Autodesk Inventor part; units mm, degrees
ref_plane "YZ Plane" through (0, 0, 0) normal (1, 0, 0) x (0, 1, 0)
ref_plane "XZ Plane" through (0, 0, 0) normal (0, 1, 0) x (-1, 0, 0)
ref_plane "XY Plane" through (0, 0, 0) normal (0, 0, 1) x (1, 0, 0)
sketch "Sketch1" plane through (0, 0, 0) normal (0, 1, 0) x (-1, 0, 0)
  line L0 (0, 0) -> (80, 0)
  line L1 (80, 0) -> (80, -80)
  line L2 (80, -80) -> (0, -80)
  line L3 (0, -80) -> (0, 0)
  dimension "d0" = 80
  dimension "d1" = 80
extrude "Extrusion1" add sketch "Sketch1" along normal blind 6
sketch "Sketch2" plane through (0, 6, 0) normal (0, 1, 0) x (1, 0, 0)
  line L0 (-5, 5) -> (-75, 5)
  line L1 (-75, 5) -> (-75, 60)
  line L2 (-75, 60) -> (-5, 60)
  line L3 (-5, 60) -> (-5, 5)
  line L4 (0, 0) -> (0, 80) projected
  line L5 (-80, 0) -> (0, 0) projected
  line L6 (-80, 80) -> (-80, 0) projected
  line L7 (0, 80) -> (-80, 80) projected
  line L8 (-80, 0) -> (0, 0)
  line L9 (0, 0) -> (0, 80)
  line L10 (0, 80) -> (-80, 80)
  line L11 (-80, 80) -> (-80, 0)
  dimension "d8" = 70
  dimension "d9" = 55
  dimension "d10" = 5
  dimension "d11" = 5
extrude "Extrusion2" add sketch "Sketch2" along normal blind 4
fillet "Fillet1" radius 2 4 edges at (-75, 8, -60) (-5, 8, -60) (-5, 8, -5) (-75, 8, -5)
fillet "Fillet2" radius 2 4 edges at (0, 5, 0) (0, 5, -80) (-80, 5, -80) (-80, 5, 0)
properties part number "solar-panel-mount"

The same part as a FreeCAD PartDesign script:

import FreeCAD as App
import Part
import Sketcher
from FreeCAD import Vector
Q = App.Units.Quantity


def edges_at(feature, points):
    """Names of the edges that pass closest to the given points."""
    edges = feature.Shape.Edges
    near = lambda p: min(range(len(edges)), key=lambda i: edges[i].distToShape(Part.Vertex(*p))[0])
    return sorted({f"Edge{near(p) + 1}" for p in points})

doc = App.newDocument("Part")
body = doc.addObject("PartDesign::Body", "Body")

sketch1 = body.newObject("Sketcher::SketchObject", "Sketch")
sketch1.AttachmentSupport = (doc.getObject("XZ_Plane"), [""])
sketch1.MapMode = "FlatFace"
sketch1.addGeometry(Part.LineSegment(Vector(-80, 0, 0), Vector(0, 0, 0)), False)
sketch1.addGeometry(Part.LineSegment(Vector(0, 0, 0), Vector(0, -80, 0)), False)
sketch1.addGeometry(Part.LineSegment(Vector(0, -80, 0), Vector(-80, -80, 0)), False)
sketch1.addGeometry(Part.LineSegment(Vector(-80, -80, 0), Vector(-80, 0, 0)), False)
sketch1.addConstraint(Sketcher.Constraint("Coincident", 0, 2, 1, 1))
sketch1.addConstraint(Sketcher.Constraint("Coincident", 1, 2, 2, 1))
sketch1.addConstraint(Sketcher.Constraint("Coincident", 2, 2, 3, 1))
sketch1.addConstraint(Sketcher.Constraint("Coincident", 3, 2, 0, 1))
sketch1.addConstraint(Sketcher.Constraint("Horizontal", 0))
sketch1.addConstraint(Sketcher.Constraint("Vertical", 1))
sketch1.addConstraint(Sketcher.Constraint("Horizontal", 2))
sketch1.addConstraint(Sketcher.Constraint("Vertical", 3))
sketch1.addConstraint(Sketcher.Constraint("Coincident", 0, 2, -1, 1))
sketch1.addConstraint(Sketcher.Constraint("Equal", 2, 1))
sketch1.addConstraint(Sketcher.Constraint("DistanceX", 0, 1, 0, 2, Q("80 mm")))
pad1 = body.newObject("PartDesign::Pad", "Pad")
pad1.Profile = sketch1
pad1.Length = 6
pad1.Reversed = True

sketch2 = body.newObject("Sketcher::SketchObject", "Sketch001")
sketch2.AttachmentSupport = (doc.getObject("XZ_Plane"), [""])
sketch2.MapMode = "FlatFace"
sketch2.AttachmentOffset = App.Placement(Vector(0, 0, -6), App.Rotation())
sketch2.addGeometry(Part.LineSegment(Vector(-80, 0, 0), Vector(0, 0, 0)), False)
sketch2.addGeometry(Part.LineSegment(Vector(0, 0, 0), Vector(0, -80, 0)), False)
sketch2.addGeometry(Part.LineSegment(Vector(0, -80, 0), Vector(-80, -80, 0)), False)
sketch2.addGeometry(Part.LineSegment(Vector(-80, -80, 0), Vector(-80, 0, 0)), False)
sketch2.addGeometry(Part.LineSegment(Vector(-5, -60, 0), Vector(-5, -5, 0)), False)
sketch2.addGeometry(Part.LineSegment(Vector(-5, -5, 0), Vector(-75, -5, 0)), False)
sketch2.addGeometry(Part.LineSegment(Vector(-75, -5, 0), Vector(-75, -60, 0)), False)
sketch2.addGeometry(Part.LineSegment(Vector(-75, -60, 0), Vector(-5, -60, 0)), False)
sketch2.addConstraint(Sketcher.Constraint("Coincident", 0, 2, 1, 1))
sketch2.addConstraint(Sketcher.Constraint("Coincident", 1, 2, 2, 1))
sketch2.addConstraint(Sketcher.Constraint("Coincident", 2, 2, 3, 1))
sketch2.addConstraint(Sketcher.Constraint("Coincident", 3, 2, 0, 1))
sketch2.addConstraint(Sketcher.Constraint("Coincident", 4, 2, 5, 1))
sketch2.addConstraint(Sketcher.Constraint("Coincident", 5, 2, 6, 1))
sketch2.addConstraint(Sketcher.Constraint("Coincident", 6, 2, 7, 1))
sketch2.addConstraint(Sketcher.Constraint("Coincident", 7, 2, 4, 1))
sketch2.addConstraint(Sketcher.Constraint("Horizontal", 0))
sketch2.addConstraint(Sketcher.Constraint("Vertical", 1))
sketch2.addConstraint(Sketcher.Constraint("Horizontal", 2))
sketch2.addConstraint(Sketcher.Constraint("Vertical", 3))
sketch2.addConstraint(Sketcher.Constraint("Vertical", 4))
sketch2.addConstraint(Sketcher.Constraint("Horizontal", 5))
sketch2.addConstraint(Sketcher.Constraint("Vertical", 6))
sketch2.addConstraint(Sketcher.Constraint("Horizontal", 7))
sketch2.addConstraint(Sketcher.Constraint("Coincident", 0, 2, -1, 1))
sketch2.addConstraint(Sketcher.Constraint("Equal", 2, 1))
sketch2.addConstraint(Sketcher.Constraint("DistanceX", 5, 2, 5, 1, Q("70 mm")))
sketch2.addConstraint(Sketcher.Constraint("DistanceY", 4, 1, 4, 2, Q("55 mm")))
sketch2.addConstraint(Sketcher.Constraint("DistanceX", 4, 2, -1, 1, Q("5 mm")))
sketch2.addConstraint(Sketcher.Constraint("DistanceY", 4, 2, -1, 1, Q("5 mm")))
sketch2.addConstraint(Sketcher.Constraint("DistanceX", 3, 2, 5, 2, Q("5 mm")))
pad2 = body.newObject("PartDesign::Pad", "Pad001")
pad2.Profile = sketch2
pad2.Length = 4
pad2.Reversed = True
doc.recompute()

fillet = body.newObject("PartDesign::Fillet", "Fillet")
fillet.Base = (pad2, edges_at(pad2, [
    (-75, 8, -60),
    (-5, 8, -60),
    (-5, 8, -5),
    (-75, 8, -5),
]))
fillet.Radius = 2
doc.recompute()

fillet2 = body.newObject("PartDesign::Fillet", "Fillet001")
fillet2.Base = (fillet, edges_at(fillet, [
    (0, 5, 0),
    (0, 5, -80),
    (-80, 5, -80),
    (-80, 5, 0),
]))
fillet2.Radius = 2

doc.recompute()
